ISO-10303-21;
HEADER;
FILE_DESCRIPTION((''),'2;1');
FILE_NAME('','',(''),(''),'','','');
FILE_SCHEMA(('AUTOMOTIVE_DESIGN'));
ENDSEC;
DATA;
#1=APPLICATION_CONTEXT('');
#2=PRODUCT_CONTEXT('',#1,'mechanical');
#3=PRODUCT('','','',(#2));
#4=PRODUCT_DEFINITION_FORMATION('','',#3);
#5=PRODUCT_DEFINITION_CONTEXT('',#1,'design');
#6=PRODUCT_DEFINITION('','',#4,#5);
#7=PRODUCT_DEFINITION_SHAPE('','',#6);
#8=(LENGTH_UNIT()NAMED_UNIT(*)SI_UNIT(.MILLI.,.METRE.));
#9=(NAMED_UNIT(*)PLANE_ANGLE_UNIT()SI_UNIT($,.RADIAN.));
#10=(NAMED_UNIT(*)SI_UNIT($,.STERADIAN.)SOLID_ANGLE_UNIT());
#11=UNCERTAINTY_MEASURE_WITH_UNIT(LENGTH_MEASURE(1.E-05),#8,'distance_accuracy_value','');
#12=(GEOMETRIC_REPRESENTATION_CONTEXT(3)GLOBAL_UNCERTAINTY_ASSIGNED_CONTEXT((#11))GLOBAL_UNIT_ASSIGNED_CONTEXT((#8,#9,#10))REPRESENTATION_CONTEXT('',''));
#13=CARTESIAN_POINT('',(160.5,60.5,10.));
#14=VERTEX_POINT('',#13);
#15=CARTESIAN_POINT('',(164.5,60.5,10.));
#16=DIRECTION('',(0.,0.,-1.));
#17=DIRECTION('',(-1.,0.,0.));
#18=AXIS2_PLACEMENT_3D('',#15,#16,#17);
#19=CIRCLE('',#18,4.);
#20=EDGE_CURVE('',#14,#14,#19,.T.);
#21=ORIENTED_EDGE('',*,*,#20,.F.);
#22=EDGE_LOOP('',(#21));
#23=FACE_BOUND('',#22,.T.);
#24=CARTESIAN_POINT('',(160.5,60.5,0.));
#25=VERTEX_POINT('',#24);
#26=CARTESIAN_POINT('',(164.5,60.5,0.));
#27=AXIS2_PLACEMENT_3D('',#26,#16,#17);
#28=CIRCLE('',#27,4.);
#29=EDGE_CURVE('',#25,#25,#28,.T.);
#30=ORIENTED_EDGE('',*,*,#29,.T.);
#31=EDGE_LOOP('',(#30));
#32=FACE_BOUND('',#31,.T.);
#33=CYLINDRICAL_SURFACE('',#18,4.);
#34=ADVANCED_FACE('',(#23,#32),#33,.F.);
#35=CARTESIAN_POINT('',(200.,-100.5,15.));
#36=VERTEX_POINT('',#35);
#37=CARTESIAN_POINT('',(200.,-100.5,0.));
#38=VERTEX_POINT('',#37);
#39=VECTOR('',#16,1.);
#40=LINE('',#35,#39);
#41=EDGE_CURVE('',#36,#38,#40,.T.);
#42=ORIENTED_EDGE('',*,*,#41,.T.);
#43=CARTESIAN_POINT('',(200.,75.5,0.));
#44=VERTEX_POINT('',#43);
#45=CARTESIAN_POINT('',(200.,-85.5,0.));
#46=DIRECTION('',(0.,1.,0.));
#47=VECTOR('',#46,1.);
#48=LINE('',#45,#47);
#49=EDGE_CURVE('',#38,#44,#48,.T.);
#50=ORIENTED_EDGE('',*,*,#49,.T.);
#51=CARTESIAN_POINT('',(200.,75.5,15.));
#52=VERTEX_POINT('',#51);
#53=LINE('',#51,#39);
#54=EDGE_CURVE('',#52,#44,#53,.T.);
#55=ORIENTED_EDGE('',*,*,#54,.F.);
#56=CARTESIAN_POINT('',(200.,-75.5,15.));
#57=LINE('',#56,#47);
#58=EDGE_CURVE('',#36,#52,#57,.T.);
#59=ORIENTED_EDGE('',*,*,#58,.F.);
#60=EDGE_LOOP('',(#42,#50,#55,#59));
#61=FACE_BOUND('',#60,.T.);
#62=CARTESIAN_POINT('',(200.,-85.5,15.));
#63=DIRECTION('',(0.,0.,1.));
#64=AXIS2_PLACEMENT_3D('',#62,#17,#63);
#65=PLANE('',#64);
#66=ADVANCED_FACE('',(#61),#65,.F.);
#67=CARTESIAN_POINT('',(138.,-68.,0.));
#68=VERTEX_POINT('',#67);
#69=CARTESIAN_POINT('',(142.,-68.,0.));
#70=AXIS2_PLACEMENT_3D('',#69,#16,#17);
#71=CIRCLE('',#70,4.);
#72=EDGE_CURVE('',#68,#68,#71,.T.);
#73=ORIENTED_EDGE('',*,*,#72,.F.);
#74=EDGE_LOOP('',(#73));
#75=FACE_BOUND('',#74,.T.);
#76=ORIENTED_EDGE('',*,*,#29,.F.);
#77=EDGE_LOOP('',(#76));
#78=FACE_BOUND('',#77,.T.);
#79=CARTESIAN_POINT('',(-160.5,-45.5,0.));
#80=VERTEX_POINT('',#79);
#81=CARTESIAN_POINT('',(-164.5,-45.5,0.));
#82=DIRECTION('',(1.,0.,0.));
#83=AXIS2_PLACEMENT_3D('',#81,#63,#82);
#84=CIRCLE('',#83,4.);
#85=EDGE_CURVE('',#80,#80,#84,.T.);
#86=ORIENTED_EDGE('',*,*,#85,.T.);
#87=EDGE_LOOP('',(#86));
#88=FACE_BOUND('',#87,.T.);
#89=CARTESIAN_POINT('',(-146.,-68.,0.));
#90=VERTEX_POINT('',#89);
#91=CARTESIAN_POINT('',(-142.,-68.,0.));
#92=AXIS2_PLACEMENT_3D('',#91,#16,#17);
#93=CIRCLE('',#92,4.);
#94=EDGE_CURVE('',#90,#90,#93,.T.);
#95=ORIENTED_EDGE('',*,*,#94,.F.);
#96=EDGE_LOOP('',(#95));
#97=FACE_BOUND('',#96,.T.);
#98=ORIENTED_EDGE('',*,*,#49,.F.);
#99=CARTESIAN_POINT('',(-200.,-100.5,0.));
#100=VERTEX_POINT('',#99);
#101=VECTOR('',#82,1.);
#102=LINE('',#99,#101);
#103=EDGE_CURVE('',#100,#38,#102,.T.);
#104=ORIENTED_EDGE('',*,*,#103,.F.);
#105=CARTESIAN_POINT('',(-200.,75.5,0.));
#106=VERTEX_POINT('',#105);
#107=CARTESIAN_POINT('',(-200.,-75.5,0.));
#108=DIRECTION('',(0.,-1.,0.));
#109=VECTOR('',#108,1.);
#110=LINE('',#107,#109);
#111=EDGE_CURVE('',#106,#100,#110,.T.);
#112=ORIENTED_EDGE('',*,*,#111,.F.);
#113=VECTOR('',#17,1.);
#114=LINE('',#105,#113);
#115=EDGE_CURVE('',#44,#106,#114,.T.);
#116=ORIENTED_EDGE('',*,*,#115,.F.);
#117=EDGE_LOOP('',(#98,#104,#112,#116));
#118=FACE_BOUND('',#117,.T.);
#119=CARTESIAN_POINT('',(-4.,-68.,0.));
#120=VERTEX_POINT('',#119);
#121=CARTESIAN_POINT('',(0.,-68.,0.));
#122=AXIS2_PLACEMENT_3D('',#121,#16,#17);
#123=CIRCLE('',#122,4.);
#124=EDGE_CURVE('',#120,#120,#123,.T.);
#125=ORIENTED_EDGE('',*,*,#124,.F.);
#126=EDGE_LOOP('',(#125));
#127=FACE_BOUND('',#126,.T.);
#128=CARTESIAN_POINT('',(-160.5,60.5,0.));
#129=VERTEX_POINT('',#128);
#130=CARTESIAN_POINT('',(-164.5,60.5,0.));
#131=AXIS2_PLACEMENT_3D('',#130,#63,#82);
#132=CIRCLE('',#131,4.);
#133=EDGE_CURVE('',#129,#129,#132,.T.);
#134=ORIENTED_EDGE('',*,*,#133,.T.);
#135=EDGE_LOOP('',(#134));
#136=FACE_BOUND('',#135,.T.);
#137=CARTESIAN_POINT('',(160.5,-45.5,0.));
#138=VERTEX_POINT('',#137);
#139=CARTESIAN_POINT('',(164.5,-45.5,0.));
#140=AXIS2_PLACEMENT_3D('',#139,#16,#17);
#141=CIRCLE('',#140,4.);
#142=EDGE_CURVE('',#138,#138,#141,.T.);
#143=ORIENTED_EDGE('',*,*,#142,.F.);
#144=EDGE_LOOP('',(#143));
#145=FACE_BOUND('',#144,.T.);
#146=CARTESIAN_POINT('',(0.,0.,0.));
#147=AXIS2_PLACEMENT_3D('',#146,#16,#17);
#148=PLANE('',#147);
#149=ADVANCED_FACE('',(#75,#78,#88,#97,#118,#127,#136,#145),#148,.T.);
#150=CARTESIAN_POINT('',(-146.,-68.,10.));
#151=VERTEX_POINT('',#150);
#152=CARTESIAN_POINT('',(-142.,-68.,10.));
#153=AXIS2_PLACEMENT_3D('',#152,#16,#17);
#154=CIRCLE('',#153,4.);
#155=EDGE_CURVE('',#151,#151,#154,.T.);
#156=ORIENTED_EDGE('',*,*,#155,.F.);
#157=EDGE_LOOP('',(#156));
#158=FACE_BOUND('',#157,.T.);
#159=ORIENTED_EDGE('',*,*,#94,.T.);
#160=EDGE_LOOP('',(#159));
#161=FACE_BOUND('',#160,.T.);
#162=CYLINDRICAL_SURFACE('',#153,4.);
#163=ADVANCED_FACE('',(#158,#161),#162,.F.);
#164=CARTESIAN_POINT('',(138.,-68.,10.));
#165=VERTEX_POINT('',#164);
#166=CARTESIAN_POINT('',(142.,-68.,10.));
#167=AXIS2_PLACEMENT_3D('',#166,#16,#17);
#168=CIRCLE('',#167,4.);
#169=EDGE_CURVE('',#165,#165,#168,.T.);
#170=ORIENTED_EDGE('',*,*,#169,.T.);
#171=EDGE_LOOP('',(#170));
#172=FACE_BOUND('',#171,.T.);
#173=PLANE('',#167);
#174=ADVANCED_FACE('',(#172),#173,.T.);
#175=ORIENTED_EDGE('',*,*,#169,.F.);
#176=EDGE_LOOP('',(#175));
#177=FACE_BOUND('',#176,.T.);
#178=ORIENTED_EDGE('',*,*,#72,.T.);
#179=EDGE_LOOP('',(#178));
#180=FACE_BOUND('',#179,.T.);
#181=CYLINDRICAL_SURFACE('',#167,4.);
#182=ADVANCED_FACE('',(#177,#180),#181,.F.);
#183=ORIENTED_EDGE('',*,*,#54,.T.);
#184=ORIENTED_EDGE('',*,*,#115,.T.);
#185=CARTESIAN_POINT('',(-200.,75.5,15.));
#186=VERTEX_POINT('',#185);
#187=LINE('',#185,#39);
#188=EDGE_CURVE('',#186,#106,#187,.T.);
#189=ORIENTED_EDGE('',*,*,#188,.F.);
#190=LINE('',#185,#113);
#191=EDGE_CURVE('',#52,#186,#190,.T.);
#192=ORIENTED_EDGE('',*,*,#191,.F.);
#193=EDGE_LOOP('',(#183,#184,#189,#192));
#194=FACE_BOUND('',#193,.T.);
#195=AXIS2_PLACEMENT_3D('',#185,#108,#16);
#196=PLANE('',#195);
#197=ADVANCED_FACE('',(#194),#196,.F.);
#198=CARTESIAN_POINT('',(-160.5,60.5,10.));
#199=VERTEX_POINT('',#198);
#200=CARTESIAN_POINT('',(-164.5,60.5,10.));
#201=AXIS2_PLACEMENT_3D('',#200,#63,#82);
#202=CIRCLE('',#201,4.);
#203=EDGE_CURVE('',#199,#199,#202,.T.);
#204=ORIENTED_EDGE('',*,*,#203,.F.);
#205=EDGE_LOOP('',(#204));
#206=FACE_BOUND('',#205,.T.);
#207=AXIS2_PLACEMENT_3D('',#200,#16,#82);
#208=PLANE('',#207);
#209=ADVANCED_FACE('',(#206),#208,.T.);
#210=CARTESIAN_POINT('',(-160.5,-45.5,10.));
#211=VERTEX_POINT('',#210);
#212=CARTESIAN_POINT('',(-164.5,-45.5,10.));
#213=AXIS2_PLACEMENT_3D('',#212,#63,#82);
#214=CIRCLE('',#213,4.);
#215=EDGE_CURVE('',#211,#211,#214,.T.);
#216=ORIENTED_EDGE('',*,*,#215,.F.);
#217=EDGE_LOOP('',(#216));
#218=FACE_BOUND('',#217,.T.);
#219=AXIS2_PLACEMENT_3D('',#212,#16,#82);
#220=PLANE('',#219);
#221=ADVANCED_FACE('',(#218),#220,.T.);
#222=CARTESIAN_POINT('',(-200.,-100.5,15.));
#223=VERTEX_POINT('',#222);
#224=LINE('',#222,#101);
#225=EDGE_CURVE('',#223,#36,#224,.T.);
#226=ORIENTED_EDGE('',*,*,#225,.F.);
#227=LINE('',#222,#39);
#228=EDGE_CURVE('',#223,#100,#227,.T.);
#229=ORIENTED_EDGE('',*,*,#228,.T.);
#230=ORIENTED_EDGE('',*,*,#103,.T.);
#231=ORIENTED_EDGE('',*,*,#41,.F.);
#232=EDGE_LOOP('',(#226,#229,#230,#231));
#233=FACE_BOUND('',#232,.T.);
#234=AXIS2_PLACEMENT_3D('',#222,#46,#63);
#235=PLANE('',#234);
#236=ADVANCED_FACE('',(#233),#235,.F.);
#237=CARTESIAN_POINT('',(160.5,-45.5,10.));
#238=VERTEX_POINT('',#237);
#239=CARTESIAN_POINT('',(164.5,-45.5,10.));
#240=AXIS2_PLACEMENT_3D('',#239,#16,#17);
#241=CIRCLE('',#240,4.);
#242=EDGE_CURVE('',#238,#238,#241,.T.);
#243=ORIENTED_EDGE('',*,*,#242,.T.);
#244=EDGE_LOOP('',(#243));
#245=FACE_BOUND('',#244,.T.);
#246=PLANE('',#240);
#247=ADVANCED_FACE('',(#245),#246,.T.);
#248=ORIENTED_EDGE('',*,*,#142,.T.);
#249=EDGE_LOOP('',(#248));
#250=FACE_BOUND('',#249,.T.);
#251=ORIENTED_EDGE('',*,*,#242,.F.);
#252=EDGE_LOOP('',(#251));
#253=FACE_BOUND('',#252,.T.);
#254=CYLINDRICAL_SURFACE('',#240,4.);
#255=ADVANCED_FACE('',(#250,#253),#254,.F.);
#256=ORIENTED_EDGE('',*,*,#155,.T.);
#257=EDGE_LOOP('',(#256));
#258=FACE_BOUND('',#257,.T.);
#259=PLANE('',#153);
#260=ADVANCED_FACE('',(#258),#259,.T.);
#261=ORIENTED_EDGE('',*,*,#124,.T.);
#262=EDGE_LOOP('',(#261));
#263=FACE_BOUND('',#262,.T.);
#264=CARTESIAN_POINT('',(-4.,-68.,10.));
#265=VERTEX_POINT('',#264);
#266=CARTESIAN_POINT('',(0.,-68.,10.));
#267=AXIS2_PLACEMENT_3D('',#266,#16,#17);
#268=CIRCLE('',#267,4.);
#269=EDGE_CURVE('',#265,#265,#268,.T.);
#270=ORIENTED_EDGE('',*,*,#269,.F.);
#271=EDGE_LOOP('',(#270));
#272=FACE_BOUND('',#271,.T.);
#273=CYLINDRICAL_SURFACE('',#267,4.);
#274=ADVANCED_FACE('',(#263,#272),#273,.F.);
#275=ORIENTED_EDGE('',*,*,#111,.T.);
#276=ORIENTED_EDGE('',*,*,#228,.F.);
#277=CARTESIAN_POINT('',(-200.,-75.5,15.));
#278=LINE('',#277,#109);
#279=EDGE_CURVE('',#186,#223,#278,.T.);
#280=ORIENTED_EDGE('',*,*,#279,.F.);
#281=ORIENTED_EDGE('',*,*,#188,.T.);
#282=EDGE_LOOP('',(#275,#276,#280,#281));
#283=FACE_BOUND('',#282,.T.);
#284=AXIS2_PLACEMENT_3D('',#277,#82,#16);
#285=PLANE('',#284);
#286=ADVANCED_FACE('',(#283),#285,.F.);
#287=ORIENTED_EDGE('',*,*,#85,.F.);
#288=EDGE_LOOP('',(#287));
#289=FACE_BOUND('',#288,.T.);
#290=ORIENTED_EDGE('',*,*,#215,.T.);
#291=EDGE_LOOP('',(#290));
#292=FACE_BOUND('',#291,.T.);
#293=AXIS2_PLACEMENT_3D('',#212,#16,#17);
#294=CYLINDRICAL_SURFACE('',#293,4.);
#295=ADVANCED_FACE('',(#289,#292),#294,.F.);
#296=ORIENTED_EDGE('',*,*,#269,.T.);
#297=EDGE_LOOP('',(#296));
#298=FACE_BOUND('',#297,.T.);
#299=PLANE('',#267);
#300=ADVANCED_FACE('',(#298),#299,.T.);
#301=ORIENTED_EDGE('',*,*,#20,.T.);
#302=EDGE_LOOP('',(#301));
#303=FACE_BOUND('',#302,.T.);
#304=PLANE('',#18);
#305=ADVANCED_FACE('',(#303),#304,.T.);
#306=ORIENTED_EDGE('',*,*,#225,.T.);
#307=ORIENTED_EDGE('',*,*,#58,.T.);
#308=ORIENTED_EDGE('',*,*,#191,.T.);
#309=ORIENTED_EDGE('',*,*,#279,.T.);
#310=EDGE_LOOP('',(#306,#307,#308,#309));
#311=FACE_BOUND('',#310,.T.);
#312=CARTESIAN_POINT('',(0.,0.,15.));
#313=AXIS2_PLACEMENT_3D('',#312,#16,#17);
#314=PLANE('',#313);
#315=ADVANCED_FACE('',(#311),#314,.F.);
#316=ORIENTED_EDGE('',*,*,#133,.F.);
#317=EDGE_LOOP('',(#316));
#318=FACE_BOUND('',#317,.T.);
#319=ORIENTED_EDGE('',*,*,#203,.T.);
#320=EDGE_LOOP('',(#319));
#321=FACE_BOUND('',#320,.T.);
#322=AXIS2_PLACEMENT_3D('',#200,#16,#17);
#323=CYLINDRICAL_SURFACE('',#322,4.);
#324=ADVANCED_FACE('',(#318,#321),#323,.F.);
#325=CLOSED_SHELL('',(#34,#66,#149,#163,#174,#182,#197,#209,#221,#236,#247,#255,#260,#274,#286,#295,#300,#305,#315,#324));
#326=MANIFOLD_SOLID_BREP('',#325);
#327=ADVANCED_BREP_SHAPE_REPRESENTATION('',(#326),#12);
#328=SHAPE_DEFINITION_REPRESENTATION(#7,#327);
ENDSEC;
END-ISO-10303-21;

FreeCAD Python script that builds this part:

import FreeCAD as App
import Part
import Sketcher

doc = App.newDocument("Part")
params = doc.addObject("Spreadsheet::Sheet", "Params")
for row, (alias, value) in enumerate([
    ("sketch1_width", "400 mm"),
    ("sketch1_height", "161 mm"),
    ("pad1_length", "15 mm"),
    ("sketch2_diameter", "8 mm"),
    ("pocket1_length", "10 mm"),
    ("linearpattern_pitch", "142 mm"),
    ("sketch3_diameter", "8 mm"),
    ("pocket2_length", "10 mm"),
    ("linearpattern2_pitch", "106 mm"),
    ("sketch4_diameter", "8 mm"),
    ("pocket3_length", "10 mm"),
    ("sketch5_width", "400 mm"),
    ("sketch5_height", "15 mm"),
    ("pad2_length", "15 mm"),
], start=1):
    params.set(f"A{row}", alias)
    params.set(f"B{row}", "=" + value)
    params.setAlias(f"B{row}", alias)

body = doc.addObject("PartDesign::Body", "Body")

# Sketch on XY plane
sketch1 = doc.addObject("Sketcher::SketchObject", "Sketch")
body.addObject(sketch1)
sketch1.AttachmentSupport = (doc.XY_Plane, [""])
sketch1.MapMode = "FlatFace"
sketch1.addGeometry([
    Part.LineSegment(App.Vector(-200, -86, 0), App.Vector(200, -86, 0)),
    Part.LineSegment(App.Vector(200, -86, 0), App.Vector(200, 76, 0)),
    Part.LineSegment(App.Vector(200, 76, 0), App.Vector(-200, 76, 0)),
    Part.LineSegment(App.Vector(-200, 76, 0), App.Vector(-200, -86, 0)),
], False)
sketch1.addConstraint([
    Sketcher.Constraint("Coincident", 0, 2, 1, 1),
    Sketcher.Constraint("Coincident", 1, 2, 2, 1),
    Sketcher.Constraint("Coincident", 2, 2, 3, 1),
    Sketcher.Constraint("Coincident", 3, 2, 0, 1),
    Sketcher.Constraint("Horizontal", 0),
    Sketcher.Constraint("Vertical", 1),
    Sketcher.Constraint("Horizontal", 2),
    Sketcher.Constraint("Vertical", 3),
    Sketcher.Constraint("DistanceX", 0, 1, 0, 2, 400.0),
    Sketcher.Constraint("DistanceY", 1, 1, 1, 2, 161.0),
    Sketcher.Constraint("DistanceX", -1, 1, 0, 2, 200.0),
    Sketcher.Constraint("DistanceY", 0, 2, -1, 1, 85.5),
])
sketch1.setExpression("Constraints[8]", "Params.sketch1_width")
sketch1.setExpression("Constraints[9]", "Params.sketch1_height")
pad1 = doc.addObject("PartDesign::Pad", "Pad")
body.addObject(pad1)
pad1.Profile = sketch1
pad1.setExpression("Length", "Params.pad1_length")

# Sketch on XY plane
sketch2 = doc.addObject("Sketcher::SketchObject", "Sketch001")
body.addObject(sketch2)
sketch2.AttachmentSupport = (doc.XY_Plane, [""])
sketch2.MapMode = "FlatFace"
sketch2.addGeometry(Part.Circle(App.Vector(142, -68, 0), App.Vector(0, 0, 1), 4), False)
sketch2.addConstraint([
    Sketcher.Constraint("Diameter", 0, 8.0),
    Sketcher.Constraint("DistanceX", -1, 1, 0, 3, 142.0),
    Sketcher.Constraint("DistanceY", 0, 3, -1, 1, 68.0),
])
sketch2.setExpression("Constraints[0]", "Params.sketch2_diameter")
pocket1 = doc.addObject("PartDesign::Pocket", "Pocket")
body.addObject(pocket1)
pocket1.Profile = sketch2
pocket1.setExpression("Length", "Params.pocket1_length")
pocket1.Reversed = True
doc.recompute()

linearpattern = doc.addObject("PartDesign::LinearPattern", "LinearPattern")
body.addObject(linearpattern)
linearpattern.Originals = [pocket1]
linearpattern.Direction = (doc.X_Axis, [""])
linearpattern.Mode = "offset"
linearpattern.setExpression("Offset", "Params.linearpattern_pitch")
linearpattern.Occurrences = 3
linearpattern.Reversed = True
body.Tip = linearpattern

# Sketch on XY plane
sketch3 = doc.addObject("Sketcher::SketchObject", "Sketch002")
body.addObject(sketch3)
sketch3.AttachmentSupport = (doc.XY_Plane, [""])
sketch3.MapMode = "FlatFace"
sketch3.addGeometry(Part.Circle(App.Vector(164.5, 60.5, 0), App.Vector(0, 0, 1), 4), False)
sketch3.addConstraint([
    Sketcher.Constraint("Diameter", 0, 8.0),
    Sketcher.Constraint("DistanceX", -1, 1, 0, 3, 164.5),
    Sketcher.Constraint("DistanceY", -1, 1, 0, 3, 60.5),
])
sketch3.setExpression("Constraints[0]", "Params.sketch3_diameter")
pocket2 = doc.addObject("PartDesign::Pocket", "Pocket001")
body.addObject(pocket2)
pocket2.Profile = sketch3
pocket2.setExpression("Length", "Params.pocket2_length")
pocket2.Reversed = True
doc.recompute()

linearpattern2 = doc.addObject("PartDesign::LinearPattern", "LinearPattern001")
body.addObject(linearpattern2)
linearpattern2.Originals = [pocket2]
linearpattern2.Direction = (doc.Y_Axis, [""])
linearpattern2.Mode = "offset"
linearpattern2.setExpression("Offset", "Params.linearpattern2_pitch")
linearpattern2.Occurrences = 2
linearpattern2.Reversed = True
body.Tip = linearpattern2
doc.recompute()

mirrored = doc.addObject("PartDesign::Mirrored", "Mirrored")
body.addObject(mirrored)
mirrored.Originals = [pocket2]
mirrored.MirrorPlane = (doc.YZ_Plane, [""])
body.Tip = mirrored

# Sketch on XY plane
sketch4 = doc.addObject("Sketcher::SketchObject", "Sketch003")
body.addObject(sketch4)
sketch4.AttachmentSupport = (doc.XY_Plane, [""])
sketch4.MapMode = "FlatFace"
sketch4.addGeometry(Part.Circle(App.Vector(-164.5, -45.5, 0), App.Vector(0, 0, 1), 4), False)
sketch4.addConstraint([
    Sketcher.Constraint("Diameter", 0, 8.0),
    Sketcher.Constraint("DistanceX", 0, 3, -1, 1, 164.5),
    Sketcher.Constraint("DistanceY", 0, 3, -1, 1, 45.5),
])
sketch4.setExpression("Constraints[0]", "Params.sketch4_diameter")
pocket3 = doc.addObject("PartDesign::Pocket", "Pocket002")
body.addObject(pocket3)
pocket3.Profile = sketch4
pocket3.setExpression("Length", "Params.pocket3_length")
pocket3.Reversed = True

# Sketch on XY plane
sketch5 = doc.addObject("Sketcher::SketchObject", "Sketch004")
body.addObject(sketch5)
sketch5.AttachmentSupport = (doc.XY_Plane, [""])
sketch5.MapMode = "FlatFace"
sketch5.addGeometry([
    Part.LineSegment(App.Vector(-200, -86, 0), App.Vector(-200, -100, 0)),
    Part.LineSegment(App.Vector(-200, -100, 0), App.Vector(200, -100, 0)),
    Part.LineSegment(App.Vector(200, -100, 0), App.Vector(200, -86, 0)),
    Part.LineSegment(App.Vector(200, -86, 0), App.Vector(-200, -86, 0)),
], False)
sketch5.addConstraint([
    Sketcher.Constraint("Coincident", 0, 2, 1, 1),
    Sketcher.Constraint("Coincident", 1, 2, 2, 1),
    Sketcher.Constraint("Coincident", 2, 2, 3, 1),
    Sketcher.Constraint("Coincident", 3, 2, 0, 1),
    Sketcher.Constraint("Vertical", 0),
    Sketcher.Constraint("Horizontal", 1),
    Sketcher.Constraint("Vertical", 2),
    Sketcher.Constraint("Horizontal", 3),
    Sketcher.Constraint("DistanceX", 1, 1, 1, 2, 400.0),
    Sketcher.Constraint("DistanceY", 0, 2, 0, 1, 15.0),
    Sketcher.Constraint("DistanceX", 0, 2, -1, 1, 200.0),
    Sketcher.Constraint("DistanceY", 0, 2, -1, 1, 100.5),
])
sketch5.setExpression("Constraints[8]", "Params.sketch5_width")
sketch5.setExpression("Constraints[9]", "Params.sketch5_height")
pad2 = doc.addObject("PartDesign::Pad", "Pad001")
body.addObject(pad2)
pad2.Profile = sketch5
pad2.setExpression("Length", "Params.pad2_length")

doc.recompute()
